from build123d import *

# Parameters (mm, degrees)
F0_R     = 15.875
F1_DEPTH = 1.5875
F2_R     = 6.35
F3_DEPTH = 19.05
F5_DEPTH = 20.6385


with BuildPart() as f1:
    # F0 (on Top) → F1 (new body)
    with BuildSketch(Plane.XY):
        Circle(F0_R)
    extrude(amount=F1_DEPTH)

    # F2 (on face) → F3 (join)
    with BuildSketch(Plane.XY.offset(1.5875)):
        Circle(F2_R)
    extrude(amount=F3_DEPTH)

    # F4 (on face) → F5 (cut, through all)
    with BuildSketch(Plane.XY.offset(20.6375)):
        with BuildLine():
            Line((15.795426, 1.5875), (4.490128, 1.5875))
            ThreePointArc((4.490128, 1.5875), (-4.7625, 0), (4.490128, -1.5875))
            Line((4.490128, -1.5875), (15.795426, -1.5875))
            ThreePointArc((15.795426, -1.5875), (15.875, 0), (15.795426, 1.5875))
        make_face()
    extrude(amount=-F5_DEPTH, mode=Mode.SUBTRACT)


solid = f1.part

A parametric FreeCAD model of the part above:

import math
import FreeCAD as App
import Part
import Sketcher
Q = App.Units.Quantity

doc = App.newDocument("Part")
body = doc.addObject("PartDesign::Body", "Body")

# Sketch on XY plane
sketch1 = body.newObject("Sketcher::SketchObject", "Sketch")
sketch1.AttachmentSupport = (doc.getObject("XY_Plane"), [""])
sketch1.MapMode = "FlatFace"
sketch1.addGeometry(Part.Circle(App.Vector(0, 0, 0), App.Vector(0, 0, 1), 16), False)
sketch1.addConstraint([
    Sketcher.Constraint("Coincident", 0, 3, -1, 1),
    Sketcher.Constraint("Diameter", 0, Q("1.25 in")),
])
pad1 = body.newObject("PartDesign::Pad", "Pad")
pad1.Profile = sketch1
pad1.Length = Q("0.0625 in")

# Sketch on XY plane
sketch2 = body.newObject("Sketcher::SketchObject", "Sketch001")
sketch2.AttachmentSupport = (doc.getObject("XY_Plane"), [""])
sketch2.MapMode = "FlatFace"
sketch2.AttachmentOffset = App.Placement(App.Vector(0, 0, 0.0625 * 25.4), App.Rotation())
sketch2.addGeometry(Part.Circle(App.Vector(0, 0, 0), App.Vector(0, 0, 1), 6), False)
sketch2.addConstraint([
    Sketcher.Constraint("Coincident", 0, 3, -1, 1),
    Sketcher.Constraint("Diameter", 0, Q("0.5 in")),
])
pad2 = body.newObject("PartDesign::Pad", "Pad001")
pad2.Profile = sketch2
pad2.Length = Q("0.75 in")

# Sketch on XY plane
sketch3 = body.newObject("Sketcher::SketchObject", "Sketch002")
sketch3.AttachmentSupport = (doc.getObject("XY_Plane"), [""])
sketch3.MapMode = "FlatFace"
sketch3.AttachmentOffset = App.Placement(App.Vector(0, 0, 0.8125 * 25.4), App.Rotation())
sketch3.addGeometry([
    Part.LineSegment(App.Vector(15.8, 1.6, 0), App.Vector(4.5, 1.6, 0)),
    Part.ArcOfCircle(Part.Circle(App.Vector(0, 0, 0), App.Vector(0, 0, 1), 4.8), math.radians(19), math.radians(341)),
    Part.LineSegment(App.Vector(4.5, -1.6, 0), App.Vector(15.8, -1.6, 0)),
    Part.ArcOfCircle(Part.Circle(App.Vector(0, 0, 0), App.Vector(0, 0, 1), 15.9), math.radians(-5.74), math.radians(5.74)),
], False)
sketch3.addConstraint([
    Sketcher.Constraint("Coincident", 0, 2, 1, 1),
    Sketcher.Constraint("Coincident", 1, 2, 2, 1),
    Sketcher.Constraint("Coincident", 2, 2, 3, 1),
    Sketcher.Constraint("Coincident", 3, 2, 0, 1),
    Sketcher.Constraint("Horizontal", 0),
    Sketcher.Constraint("Horizontal", 2),
    Sketcher.Constraint("Coincident", 1, 3, -1, 1),
    Sketcher.Constraint("Symmetric", 2, 2, 3, 2, -1),
    Sketcher.Constraint("Radius", 1, Q("0.1875 in")),
    Sketcher.Constraint("DistanceY", -1, 1, 0, 2, Q("0.0625 in")),
    Sketcher.Constraint("Radius", 3, Q("15.875087 mm")),
    Sketcher.Constraint("DistanceX", 0, 2, 3, 2, Q("11.305298 mm")),
])
pocket1 = body.newObject("PartDesign::Pocket", "Pocket")
pocket1.Profile = sketch3
pocket1.Type = "ThroughAll"

doc.recompute()
